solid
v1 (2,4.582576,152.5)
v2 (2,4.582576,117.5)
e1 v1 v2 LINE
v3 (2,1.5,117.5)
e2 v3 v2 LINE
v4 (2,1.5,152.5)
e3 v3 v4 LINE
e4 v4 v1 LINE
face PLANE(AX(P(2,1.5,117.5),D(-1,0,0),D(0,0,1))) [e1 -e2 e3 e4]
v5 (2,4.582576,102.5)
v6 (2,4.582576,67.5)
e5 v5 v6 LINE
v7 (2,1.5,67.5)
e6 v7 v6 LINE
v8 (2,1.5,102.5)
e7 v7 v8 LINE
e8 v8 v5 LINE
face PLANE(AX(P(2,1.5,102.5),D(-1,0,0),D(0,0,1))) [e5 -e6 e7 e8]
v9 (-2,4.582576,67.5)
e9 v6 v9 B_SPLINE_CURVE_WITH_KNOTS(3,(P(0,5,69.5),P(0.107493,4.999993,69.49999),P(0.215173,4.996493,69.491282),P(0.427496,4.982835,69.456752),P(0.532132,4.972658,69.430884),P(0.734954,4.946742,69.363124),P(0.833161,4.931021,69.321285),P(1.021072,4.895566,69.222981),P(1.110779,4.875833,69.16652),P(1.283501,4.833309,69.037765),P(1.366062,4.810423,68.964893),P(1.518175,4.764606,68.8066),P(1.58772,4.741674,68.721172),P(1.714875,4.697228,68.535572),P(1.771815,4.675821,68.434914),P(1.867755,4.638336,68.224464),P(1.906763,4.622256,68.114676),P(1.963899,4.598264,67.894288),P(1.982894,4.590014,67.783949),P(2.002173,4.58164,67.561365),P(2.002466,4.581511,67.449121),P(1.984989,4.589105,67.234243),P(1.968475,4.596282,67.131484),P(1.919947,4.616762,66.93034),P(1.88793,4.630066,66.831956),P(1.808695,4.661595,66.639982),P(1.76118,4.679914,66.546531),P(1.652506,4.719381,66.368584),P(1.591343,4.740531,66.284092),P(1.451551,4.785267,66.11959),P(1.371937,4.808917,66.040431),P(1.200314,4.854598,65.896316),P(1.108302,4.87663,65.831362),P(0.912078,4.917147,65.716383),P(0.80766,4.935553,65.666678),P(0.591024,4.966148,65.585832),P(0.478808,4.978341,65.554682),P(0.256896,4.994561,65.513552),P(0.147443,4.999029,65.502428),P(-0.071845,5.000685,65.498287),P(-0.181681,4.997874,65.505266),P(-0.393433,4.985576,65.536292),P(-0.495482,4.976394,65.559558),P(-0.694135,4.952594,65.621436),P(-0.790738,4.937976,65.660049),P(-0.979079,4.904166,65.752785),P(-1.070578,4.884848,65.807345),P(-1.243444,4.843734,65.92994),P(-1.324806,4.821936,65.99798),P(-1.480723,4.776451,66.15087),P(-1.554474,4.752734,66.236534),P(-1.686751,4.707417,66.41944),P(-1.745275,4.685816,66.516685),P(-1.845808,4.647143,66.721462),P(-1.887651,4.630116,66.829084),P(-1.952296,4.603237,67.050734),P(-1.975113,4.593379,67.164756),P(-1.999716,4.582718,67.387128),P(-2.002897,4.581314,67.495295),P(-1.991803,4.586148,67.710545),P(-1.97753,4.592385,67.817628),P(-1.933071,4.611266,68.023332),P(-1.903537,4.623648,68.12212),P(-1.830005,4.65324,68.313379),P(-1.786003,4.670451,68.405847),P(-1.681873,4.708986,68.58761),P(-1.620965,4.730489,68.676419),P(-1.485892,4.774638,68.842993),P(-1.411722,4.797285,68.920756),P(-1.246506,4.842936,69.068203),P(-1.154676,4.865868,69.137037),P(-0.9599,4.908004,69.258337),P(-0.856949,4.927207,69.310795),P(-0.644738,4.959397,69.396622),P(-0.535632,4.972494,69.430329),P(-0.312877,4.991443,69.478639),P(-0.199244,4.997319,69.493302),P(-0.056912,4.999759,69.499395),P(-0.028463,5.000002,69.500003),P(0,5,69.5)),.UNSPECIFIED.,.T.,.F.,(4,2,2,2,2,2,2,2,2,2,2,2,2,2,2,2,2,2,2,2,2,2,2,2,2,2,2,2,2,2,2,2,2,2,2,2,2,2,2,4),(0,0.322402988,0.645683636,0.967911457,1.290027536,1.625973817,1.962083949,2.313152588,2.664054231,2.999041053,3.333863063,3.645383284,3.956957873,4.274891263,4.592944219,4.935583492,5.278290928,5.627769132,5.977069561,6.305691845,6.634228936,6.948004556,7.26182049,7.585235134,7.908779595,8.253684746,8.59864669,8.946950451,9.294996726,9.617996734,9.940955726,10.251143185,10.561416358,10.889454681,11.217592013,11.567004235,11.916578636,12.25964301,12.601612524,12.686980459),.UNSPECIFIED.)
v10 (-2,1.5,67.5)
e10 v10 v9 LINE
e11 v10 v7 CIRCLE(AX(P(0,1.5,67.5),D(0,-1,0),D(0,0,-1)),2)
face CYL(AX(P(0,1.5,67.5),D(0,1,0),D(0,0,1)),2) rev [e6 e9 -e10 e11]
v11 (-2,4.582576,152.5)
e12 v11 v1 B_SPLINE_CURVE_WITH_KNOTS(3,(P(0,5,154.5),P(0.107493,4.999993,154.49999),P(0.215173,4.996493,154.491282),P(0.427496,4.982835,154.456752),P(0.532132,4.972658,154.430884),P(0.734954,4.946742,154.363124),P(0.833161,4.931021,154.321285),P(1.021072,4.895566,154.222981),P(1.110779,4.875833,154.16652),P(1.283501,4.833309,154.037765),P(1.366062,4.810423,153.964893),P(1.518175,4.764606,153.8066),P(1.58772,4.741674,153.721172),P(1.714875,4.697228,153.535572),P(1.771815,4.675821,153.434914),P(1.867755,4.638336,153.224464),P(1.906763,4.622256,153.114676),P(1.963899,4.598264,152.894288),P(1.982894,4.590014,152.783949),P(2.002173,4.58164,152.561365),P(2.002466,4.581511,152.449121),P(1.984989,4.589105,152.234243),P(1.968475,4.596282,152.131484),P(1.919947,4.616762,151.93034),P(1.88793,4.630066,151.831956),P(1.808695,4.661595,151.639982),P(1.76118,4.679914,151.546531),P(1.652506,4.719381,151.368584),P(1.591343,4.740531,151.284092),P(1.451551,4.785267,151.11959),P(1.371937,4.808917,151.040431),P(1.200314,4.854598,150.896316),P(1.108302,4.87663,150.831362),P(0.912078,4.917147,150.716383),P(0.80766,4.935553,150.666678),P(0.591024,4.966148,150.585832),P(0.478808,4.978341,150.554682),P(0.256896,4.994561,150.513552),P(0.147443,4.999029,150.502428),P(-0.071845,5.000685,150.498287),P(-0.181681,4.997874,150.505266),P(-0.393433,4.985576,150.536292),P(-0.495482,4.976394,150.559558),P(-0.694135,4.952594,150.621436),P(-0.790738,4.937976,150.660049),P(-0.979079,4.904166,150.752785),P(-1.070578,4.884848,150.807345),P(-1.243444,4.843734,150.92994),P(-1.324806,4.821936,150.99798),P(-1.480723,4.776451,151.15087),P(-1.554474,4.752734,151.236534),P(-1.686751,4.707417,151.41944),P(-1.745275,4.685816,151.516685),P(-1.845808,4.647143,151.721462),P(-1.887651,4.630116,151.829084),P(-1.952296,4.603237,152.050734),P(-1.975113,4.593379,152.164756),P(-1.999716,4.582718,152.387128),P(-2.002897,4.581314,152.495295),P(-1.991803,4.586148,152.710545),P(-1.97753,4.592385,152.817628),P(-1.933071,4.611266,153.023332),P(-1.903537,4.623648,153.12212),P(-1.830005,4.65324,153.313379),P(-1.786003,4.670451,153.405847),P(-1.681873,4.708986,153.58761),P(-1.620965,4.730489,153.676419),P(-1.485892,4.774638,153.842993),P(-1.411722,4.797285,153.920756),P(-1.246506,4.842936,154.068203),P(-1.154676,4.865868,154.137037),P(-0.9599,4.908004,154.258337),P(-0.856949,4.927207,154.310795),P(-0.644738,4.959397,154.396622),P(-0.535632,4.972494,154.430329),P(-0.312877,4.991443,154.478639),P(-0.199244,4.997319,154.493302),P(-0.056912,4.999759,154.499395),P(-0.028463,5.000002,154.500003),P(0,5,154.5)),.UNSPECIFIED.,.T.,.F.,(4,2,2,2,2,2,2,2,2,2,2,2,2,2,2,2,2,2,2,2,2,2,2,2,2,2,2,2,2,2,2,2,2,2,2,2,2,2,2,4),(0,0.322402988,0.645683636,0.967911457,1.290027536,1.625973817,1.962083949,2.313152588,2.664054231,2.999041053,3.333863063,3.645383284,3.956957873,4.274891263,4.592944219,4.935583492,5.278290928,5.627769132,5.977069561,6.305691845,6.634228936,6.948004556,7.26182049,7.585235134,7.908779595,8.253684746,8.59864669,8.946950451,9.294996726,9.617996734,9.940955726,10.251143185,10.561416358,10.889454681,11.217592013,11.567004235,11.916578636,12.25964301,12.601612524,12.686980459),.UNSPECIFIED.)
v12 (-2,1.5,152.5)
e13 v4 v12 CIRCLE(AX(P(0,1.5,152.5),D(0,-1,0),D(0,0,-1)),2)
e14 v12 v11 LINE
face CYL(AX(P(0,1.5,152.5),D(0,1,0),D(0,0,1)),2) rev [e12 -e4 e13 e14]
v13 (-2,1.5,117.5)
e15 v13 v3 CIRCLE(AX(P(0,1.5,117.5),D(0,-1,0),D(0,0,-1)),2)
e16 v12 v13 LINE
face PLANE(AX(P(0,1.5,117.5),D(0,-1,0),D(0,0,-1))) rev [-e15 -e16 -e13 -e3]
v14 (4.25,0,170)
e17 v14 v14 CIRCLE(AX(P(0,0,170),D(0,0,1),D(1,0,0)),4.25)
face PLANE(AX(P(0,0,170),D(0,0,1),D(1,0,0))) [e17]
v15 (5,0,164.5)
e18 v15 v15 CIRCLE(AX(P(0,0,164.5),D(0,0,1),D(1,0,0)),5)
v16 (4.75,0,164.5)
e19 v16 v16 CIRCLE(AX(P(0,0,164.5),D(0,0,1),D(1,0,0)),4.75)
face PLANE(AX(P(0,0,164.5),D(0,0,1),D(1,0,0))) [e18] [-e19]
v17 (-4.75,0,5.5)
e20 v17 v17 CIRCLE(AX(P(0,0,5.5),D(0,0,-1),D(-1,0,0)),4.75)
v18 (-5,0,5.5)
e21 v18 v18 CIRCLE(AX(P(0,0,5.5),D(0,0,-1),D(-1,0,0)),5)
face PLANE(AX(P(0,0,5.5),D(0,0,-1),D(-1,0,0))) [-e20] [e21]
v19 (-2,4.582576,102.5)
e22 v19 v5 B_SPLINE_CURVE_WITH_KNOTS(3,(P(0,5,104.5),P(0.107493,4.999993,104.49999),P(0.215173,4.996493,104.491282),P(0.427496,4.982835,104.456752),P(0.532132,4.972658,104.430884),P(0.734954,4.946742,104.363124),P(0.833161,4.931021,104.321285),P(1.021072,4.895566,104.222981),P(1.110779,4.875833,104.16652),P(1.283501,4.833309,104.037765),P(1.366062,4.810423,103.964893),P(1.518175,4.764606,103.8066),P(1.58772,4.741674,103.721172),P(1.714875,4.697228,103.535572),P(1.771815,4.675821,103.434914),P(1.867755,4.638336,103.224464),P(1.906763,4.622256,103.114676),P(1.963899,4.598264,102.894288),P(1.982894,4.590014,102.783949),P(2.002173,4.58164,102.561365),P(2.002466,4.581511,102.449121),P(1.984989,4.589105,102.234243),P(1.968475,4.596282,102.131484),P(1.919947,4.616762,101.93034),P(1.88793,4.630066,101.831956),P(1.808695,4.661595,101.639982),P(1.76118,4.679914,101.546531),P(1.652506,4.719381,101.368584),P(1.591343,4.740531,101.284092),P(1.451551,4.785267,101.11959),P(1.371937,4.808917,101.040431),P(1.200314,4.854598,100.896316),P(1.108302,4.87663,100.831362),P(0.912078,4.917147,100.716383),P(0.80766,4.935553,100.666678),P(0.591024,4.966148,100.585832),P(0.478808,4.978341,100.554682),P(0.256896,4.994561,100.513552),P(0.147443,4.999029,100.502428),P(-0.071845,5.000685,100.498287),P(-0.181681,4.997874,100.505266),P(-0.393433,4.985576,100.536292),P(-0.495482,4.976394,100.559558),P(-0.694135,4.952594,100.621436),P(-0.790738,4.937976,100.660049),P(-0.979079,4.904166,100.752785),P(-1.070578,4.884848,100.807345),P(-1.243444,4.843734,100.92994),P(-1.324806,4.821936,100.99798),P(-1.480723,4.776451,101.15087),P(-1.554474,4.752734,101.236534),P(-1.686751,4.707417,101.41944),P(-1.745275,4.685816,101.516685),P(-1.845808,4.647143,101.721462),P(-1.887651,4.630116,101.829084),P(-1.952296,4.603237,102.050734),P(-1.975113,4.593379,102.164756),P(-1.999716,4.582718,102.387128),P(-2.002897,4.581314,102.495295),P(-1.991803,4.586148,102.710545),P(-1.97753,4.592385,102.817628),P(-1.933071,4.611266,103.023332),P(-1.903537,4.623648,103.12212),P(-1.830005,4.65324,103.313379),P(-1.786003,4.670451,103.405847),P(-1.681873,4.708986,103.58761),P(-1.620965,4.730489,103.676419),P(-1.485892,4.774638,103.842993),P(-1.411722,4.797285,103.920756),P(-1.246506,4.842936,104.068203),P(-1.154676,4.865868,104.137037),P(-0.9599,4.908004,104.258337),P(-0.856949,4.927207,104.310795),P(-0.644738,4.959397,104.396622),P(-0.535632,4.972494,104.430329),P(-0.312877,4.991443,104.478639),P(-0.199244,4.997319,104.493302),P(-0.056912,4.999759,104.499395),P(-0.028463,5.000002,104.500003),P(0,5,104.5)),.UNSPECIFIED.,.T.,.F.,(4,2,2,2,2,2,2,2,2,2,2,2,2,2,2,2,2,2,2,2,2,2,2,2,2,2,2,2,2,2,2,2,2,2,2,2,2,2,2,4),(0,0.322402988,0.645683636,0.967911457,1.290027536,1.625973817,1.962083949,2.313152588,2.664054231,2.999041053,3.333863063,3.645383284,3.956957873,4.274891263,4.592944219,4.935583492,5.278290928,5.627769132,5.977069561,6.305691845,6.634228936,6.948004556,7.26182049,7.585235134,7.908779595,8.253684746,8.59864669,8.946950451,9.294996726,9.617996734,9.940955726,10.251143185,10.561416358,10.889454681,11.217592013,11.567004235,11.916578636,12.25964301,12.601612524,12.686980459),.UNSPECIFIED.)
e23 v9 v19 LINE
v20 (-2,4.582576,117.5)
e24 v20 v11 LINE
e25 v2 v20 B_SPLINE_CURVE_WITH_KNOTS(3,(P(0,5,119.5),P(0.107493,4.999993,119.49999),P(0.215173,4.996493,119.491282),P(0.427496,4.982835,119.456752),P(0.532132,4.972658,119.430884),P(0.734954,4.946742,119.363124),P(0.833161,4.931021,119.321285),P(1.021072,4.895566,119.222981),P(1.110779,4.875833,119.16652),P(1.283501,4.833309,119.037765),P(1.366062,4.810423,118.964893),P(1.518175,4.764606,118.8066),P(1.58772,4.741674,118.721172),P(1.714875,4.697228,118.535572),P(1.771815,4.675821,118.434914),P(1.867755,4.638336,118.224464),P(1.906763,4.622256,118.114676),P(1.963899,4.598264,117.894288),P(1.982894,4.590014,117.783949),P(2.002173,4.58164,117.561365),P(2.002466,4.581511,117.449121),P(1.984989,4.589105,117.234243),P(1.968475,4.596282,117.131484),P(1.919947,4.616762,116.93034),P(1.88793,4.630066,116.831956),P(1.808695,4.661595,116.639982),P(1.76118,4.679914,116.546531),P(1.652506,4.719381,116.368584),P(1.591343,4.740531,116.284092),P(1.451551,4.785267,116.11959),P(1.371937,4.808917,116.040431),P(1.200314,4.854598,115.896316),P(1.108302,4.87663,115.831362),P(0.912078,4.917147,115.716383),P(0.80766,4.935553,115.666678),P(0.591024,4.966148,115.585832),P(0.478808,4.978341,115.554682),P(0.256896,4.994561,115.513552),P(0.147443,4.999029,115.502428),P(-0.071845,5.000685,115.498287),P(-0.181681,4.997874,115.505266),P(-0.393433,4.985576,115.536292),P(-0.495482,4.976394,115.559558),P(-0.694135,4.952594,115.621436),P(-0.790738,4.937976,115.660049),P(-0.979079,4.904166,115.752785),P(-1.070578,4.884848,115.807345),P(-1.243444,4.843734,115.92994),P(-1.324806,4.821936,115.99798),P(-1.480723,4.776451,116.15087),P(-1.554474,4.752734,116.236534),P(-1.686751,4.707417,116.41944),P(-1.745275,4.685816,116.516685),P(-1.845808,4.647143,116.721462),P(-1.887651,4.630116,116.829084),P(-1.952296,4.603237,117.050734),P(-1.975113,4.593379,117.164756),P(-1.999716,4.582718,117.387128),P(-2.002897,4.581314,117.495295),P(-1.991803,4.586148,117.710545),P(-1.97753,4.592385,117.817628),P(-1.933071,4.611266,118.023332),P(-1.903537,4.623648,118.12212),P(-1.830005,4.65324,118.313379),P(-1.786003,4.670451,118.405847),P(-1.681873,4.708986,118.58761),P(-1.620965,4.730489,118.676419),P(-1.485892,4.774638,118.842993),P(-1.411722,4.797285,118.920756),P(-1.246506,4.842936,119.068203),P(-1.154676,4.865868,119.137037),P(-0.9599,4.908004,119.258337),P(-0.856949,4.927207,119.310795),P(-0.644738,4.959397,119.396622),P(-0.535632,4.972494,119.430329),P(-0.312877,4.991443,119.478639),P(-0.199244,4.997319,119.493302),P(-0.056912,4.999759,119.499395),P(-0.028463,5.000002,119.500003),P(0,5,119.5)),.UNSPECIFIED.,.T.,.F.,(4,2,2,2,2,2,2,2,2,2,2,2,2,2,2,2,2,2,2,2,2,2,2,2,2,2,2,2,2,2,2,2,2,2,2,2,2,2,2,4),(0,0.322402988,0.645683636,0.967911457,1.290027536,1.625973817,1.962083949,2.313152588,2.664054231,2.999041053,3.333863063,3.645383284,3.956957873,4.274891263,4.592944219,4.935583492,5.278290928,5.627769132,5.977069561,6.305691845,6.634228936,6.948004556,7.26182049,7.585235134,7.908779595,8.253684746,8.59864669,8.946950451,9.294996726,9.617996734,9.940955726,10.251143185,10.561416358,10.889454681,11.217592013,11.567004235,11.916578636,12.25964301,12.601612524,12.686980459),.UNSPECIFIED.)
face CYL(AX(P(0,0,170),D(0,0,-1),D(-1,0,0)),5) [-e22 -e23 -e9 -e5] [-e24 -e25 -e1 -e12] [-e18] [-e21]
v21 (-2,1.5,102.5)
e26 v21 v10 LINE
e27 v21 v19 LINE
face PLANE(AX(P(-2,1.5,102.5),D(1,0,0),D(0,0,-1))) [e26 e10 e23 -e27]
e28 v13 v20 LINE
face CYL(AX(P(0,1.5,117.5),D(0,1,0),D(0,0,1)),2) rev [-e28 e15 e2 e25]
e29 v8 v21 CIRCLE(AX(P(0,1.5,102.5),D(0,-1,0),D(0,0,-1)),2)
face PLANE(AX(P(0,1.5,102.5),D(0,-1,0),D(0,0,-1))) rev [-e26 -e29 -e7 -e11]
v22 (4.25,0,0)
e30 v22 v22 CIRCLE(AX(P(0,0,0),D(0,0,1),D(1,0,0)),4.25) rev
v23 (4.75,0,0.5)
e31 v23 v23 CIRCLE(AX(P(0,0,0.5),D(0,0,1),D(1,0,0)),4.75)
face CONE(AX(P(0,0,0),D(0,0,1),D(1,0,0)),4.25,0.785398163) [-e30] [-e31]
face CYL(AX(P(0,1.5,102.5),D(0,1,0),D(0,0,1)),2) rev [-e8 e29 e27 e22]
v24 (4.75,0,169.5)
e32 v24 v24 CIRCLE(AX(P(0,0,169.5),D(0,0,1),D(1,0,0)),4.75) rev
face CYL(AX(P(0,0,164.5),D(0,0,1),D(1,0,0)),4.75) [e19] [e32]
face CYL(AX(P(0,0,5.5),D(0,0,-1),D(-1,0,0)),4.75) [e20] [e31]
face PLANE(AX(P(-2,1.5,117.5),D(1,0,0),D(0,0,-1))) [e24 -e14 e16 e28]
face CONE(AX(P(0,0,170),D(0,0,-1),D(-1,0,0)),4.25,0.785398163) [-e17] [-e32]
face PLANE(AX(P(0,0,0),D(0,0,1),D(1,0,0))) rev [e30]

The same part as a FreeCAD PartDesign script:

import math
import FreeCAD as App
import Part
import Sketcher


def edges_at(feature, points):
    """Names of the edges that pass closest to the given points."""
    edges = feature.Shape.Edges
    near = lambda p: min(range(len(edges)), key=lambda i: edges[i].distToShape(Part.Vertex(*p))[0])
    return sorted({f"Edge{near(p) + 1}" for p in points})

doc = App.newDocument("Part")
body = doc.addObject("PartDesign::Body", "Body")

sketch1 = body.newObject("Sketcher::SketchObject", "Sketch")
sketch1.AttachmentSupport = (doc.getObject("XY_Plane"), [""])
sketch1.MapMode = "FlatFace"
sketch1.addGeometry(Part.Circle(App.Vector(0, 0, 0), App.Vector(0, 0, 1), 5), False)
sketch1.addConstraint(Sketcher.Constraint("Coincident", 0, 3, -1, 1))
sketch1.addConstraint(Sketcher.Constraint("Diameter", 0, 10.0))
pad1 = body.newObject("PartDesign::Pad", "Pad")
pad1.Profile = sketch1
pad1.Length = 170

sketch2 = body.newObject("Sketcher::SketchObject", "Sketch001")
sketch2.AttachmentSupport = (doc.getObject("XY_Plane"), [""])
sketch2.MapMode = "FlatFace"
sketch2.AttachmentOffset = App.Placement(App.Vector(0, 0, 164.5), App.Rotation())
sketch2.addGeometry(Part.Circle(App.Vector(0, 0, 0), App.Vector(0, 0, 1), 5), False)
sketch2.addGeometry(Part.Circle(App.Vector(0, 0, 0), App.Vector(0, 0, 1), 4.8), False)
sketch2.addConstraint(Sketcher.Constraint("Coincident", 0, 3, -1, 1))
sketch2.addConstraint(Sketcher.Constraint("Coincident", 1, 3, -1, 1))
sketch2.addConstraint(Sketcher.Constraint("Diameter", 0, 10.0))
sketch2.addConstraint(Sketcher.Constraint("Diameter", 1, 9.5))
pocket1 = body.newObject("PartDesign::Pocket", "Pocket")
pocket1.Profile = sketch2
pocket1.Length = 5.5
pocket1.Reversed = True

sketch3 = body.newObject("Sketcher::SketchObject", "Sketch002")
sketch3.AttachmentSupport = (doc.getObject("XY_Plane"), [""])
sketch3.MapMode = "FlatFace"
sketch3.addGeometry(Part.Circle(App.Vector(0, 0, 0), App.Vector(0, 0, 1), 5), False)
sketch3.addGeometry(Part.Circle(App.Vector(0, 0, 0), App.Vector(0, 0, 1), 4.8), False)
sketch3.addConstraint(Sketcher.Constraint("Coincident", 0, 3, -1, 1))
sketch3.addConstraint(Sketcher.Constraint("Coincident", 1, 3, -1, 1))
sketch3.addConstraint(Sketcher.Constraint("Diameter", 0, 10.0))
sketch3.addConstraint(Sketcher.Constraint("Diameter", 1, 9.5))
pocket2 = body.newObject("PartDesign::Pocket", "Pocket001")
pocket2.Profile = sketch3
pocket2.Length = 5.5
pocket2.Reversed = True
doc.recompute()

chamfer = body.newObject("PartDesign::Chamfer", "Chamfer")
chamfer.Base = (pocket2, edges_at(pocket2, [(-4.75, 0, 0), (-4.75, 0, 170)]))
chamfer.Size = 0.5

sketch4 = body.newObject("Sketcher::SketchObject", "Sketch003")
sketch4.AttachmentSupport = (doc.getObject("XZ_Plane"), [""])
sketch4.MapMode = "FlatFace"
sketch4.AttachmentOffset = App.Placement(App.Vector(0, 0, -5), App.Rotation())
sketch4.addGeometry(Part.LineSegment(App.Vector(-2, 152.5, 0), App.Vector(-2, 117.5, 0)), False)
sketch4.addGeometry(Part.ArcOfCircle(Part.Circle(App.Vector(0, 117.5, 0), App.Vector(0, 0, 1), 2), math.radians(180), math.radians(360)), False)
sketch4.addGeometry(Part.LineSegment(App.Vector(2, 117.5, 0), App.Vector(2, 152.5, 0)), False)
sketch4.addGeometry(Part.ArcOfCircle(Part.Circle(App.Vector(0, 152.5, 0), App.Vector(0, 0, 1), 2), math.radians(0), math.radians(180)), False)
sketch4.addGeometry(Part.LineSegment(App.Vector(2, 67.5, 0), App.Vector(2, 102.5, 0)), False)
sketch4.addGeometry(Part.ArcOfCircle(Part.Circle(App.Vector(0, 102.5, 0), App.Vector(0, 0, 1), 2), math.radians(0), math.radians(180)), False)
sketch4.addGeometry(Part.LineSegment(App.Vector(-2, 102.5, 0), App.Vector(-2, 67.5, 0)), False)
sketch4.addGeometry(Part.ArcOfCircle(Part.Circle(App.Vector(0, 67.5, 0), App.Vector(0, 0, 1), 2), math.radians(180), math.radians(360)), False)
sketch4.addConstraint(Sketcher.Constraint("Tangent", 0, 2, 1, 1))
sketch4.addConstraint(Sketcher.Constraint("Tangent", 1, 2, 2, 1))
sketch4.addConstraint(Sketcher.Constraint("Tangent", 2, 2, 3, 1))
sketch4.addConstraint(Sketcher.Constraint("Tangent", 3, 2, 0, 1))
sketch4.addConstraint(Sketcher.Constraint("Tangent", 4, 2, 5, 1))
sketch4.addConstraint(Sketcher.Constraint("Tangent", 5, 2, 6, 1))
sketch4.addConstraint(Sketcher.Constraint("Tangent", 6, 2, 7, 1))
sketch4.addConstraint(Sketcher.Constraint("Tangent", 7, 2, 4, 1))
sketch4.addConstraint(Sketcher.Constraint("Vertical", 0))
sketch4.addConstraint(Sketcher.Constraint("Vertical", 2))
sketch4.addConstraint(Sketcher.Constraint("Vertical", 4))
sketch4.addConstraint(Sketcher.Constraint("Vertical", 6))
sketch4.addConstraint(Sketcher.Constraint("Equal", 3, 5))
sketch4.addConstraint(Sketcher.Constraint("PointOnObject", 1, 3, -2))
sketch4.addConstraint(Sketcher.Constraint("PointOnObject", 5, 3, -2))
sketch4.addConstraint(Sketcher.Constraint("Equal", 2, 4))
sketch4.addConstraint(Sketcher.Constraint("Radius", 1, 2.0))
sketch4.addConstraint(Sketcher.Constraint("DistanceY", 0, 2, 0, 1, 35.0))
sketch4.addConstraint(Sketcher.Constraint("DistanceY", 5, 3, 1, 3, 15.0))
sketch4.addConstraint(Sketcher.Constraint("DistanceY", -1, 1, 1, 3, 117.5))
pocket3 = body.newObject("PartDesign::Pocket", "Pocket002")
pocket3.Profile = sketch4
pocket3.Length = 3.5
pocket3.Reversed = True

doc.recompute()
